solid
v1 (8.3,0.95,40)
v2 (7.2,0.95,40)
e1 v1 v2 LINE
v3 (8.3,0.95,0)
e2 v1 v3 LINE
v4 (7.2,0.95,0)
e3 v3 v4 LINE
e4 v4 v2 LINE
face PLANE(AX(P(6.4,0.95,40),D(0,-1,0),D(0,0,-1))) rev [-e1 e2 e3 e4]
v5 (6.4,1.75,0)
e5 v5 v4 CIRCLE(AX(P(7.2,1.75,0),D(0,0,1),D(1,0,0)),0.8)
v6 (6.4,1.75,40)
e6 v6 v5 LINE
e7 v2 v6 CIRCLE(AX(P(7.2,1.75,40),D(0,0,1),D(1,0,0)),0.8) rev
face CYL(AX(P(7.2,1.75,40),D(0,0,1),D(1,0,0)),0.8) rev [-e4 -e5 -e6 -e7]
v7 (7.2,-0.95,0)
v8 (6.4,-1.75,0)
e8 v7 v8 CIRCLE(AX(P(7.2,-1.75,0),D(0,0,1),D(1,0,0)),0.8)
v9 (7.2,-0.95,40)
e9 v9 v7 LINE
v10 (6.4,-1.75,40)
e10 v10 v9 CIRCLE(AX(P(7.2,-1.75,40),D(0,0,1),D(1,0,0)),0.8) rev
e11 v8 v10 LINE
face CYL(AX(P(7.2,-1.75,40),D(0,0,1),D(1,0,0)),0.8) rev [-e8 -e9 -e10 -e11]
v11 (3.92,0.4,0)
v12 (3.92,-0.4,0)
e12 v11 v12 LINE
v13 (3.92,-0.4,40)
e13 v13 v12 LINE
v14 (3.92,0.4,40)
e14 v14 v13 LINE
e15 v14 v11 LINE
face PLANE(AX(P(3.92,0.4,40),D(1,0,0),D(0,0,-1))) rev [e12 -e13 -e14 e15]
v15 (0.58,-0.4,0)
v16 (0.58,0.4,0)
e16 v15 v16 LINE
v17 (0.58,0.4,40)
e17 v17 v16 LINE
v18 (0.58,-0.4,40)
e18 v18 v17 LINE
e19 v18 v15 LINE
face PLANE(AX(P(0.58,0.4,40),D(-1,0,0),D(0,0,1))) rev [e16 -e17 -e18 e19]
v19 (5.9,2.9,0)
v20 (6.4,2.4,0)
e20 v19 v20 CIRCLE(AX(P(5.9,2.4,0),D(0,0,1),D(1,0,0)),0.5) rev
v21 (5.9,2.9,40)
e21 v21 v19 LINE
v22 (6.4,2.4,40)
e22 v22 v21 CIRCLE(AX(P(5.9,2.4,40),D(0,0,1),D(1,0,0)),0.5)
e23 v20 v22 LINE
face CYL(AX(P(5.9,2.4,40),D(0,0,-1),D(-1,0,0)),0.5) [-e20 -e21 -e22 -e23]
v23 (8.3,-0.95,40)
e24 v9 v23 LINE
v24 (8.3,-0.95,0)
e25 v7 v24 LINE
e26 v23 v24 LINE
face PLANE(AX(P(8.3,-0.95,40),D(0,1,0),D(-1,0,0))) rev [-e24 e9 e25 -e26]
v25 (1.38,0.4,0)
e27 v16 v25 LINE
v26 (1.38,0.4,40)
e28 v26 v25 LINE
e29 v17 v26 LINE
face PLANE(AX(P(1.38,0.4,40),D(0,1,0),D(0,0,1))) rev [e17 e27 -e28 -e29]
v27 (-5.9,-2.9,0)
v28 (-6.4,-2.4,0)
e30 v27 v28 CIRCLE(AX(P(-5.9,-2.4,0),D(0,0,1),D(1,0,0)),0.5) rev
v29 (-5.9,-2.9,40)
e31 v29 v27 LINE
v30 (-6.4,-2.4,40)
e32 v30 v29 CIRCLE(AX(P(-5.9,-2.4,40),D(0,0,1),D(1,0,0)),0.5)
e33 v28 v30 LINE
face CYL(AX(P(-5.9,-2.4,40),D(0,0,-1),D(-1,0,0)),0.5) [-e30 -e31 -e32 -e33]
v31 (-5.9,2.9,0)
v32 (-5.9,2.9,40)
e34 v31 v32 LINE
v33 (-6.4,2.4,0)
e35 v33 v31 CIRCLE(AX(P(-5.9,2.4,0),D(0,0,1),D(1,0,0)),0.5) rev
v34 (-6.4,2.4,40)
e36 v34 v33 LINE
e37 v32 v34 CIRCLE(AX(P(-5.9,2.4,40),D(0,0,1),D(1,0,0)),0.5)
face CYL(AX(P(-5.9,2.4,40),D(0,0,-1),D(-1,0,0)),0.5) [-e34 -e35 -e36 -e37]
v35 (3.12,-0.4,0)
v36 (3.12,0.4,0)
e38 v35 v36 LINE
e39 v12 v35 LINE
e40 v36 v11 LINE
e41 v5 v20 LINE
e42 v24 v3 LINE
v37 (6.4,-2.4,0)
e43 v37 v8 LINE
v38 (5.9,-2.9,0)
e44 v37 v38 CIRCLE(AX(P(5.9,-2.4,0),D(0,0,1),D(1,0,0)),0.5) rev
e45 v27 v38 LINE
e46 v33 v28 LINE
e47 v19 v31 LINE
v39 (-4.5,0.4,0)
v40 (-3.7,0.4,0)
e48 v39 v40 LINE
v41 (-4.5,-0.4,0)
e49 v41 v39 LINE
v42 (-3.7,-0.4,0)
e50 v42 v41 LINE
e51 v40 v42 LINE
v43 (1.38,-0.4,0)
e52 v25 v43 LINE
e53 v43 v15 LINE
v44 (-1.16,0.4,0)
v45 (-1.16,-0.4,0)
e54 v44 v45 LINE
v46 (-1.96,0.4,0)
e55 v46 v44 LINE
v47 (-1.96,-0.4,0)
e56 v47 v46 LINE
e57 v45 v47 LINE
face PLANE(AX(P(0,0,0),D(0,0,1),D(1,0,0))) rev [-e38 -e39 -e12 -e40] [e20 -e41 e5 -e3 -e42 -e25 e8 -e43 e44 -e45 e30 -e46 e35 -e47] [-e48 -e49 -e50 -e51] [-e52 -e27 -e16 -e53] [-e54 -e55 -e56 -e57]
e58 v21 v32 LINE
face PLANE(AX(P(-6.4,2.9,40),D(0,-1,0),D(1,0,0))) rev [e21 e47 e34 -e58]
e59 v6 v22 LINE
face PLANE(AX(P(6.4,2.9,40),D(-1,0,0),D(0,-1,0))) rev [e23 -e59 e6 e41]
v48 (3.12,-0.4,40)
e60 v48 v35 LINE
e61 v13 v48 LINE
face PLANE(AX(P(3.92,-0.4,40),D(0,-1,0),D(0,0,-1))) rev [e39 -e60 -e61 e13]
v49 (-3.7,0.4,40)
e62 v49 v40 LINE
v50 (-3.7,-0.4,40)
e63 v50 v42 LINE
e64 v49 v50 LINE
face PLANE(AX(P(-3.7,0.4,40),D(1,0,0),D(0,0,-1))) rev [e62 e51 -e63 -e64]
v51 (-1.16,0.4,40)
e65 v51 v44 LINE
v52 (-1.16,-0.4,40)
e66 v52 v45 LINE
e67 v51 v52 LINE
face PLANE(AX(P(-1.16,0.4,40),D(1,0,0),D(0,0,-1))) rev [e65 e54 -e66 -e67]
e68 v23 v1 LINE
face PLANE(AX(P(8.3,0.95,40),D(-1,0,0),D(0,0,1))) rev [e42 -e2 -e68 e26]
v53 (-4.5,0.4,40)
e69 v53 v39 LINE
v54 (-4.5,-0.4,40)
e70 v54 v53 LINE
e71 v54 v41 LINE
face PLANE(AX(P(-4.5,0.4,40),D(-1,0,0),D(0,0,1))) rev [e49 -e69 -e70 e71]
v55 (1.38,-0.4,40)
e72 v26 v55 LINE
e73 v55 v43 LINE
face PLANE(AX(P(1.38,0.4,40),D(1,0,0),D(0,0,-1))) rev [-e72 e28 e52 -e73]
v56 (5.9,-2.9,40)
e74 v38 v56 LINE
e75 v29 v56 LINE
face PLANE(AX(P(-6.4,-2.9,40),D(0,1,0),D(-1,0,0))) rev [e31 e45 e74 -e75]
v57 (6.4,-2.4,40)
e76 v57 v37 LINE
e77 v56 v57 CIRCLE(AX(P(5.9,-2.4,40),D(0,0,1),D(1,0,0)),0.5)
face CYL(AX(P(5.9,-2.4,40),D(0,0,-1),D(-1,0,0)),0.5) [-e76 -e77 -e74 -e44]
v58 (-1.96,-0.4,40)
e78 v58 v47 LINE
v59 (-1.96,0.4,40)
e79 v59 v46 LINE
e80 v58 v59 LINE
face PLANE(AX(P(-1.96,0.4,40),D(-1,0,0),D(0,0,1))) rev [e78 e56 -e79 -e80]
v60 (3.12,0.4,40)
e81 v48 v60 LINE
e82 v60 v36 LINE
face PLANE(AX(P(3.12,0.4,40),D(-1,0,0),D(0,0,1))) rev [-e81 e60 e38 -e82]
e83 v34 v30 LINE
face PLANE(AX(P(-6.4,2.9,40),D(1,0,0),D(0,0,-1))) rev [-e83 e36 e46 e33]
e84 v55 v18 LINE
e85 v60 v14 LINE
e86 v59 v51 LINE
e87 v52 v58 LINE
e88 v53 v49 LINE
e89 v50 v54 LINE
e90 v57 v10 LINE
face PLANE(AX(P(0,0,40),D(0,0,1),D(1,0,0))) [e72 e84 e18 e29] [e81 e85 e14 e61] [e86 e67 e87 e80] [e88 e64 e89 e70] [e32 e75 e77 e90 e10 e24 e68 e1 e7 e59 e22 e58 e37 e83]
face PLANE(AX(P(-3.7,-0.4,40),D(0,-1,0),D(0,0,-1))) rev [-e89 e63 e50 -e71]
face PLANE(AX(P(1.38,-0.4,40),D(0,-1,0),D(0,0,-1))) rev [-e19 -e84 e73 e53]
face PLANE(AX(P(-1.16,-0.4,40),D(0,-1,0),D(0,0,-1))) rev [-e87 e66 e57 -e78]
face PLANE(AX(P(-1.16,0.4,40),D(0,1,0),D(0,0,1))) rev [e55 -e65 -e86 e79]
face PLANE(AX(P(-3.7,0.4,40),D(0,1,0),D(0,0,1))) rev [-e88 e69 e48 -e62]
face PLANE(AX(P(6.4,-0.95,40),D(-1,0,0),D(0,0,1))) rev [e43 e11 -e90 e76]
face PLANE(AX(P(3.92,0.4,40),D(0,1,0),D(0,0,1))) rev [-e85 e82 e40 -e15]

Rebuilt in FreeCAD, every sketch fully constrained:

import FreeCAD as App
import Part
import Sketcher

V = App.Vector


def edges_at(feature, points):
    """Names of the edges that pass closest to the given points."""
    edges = feature.Shape.Edges
    near = lambda p: min(range(len(edges)), key=lambda i: edges[i].distToShape(Part.Vertex(*p))[0])
    return sorted({f"Edge{near(p) + 1}" for p in points})


def add_polygon(sketch, points):
    """Adds a closed chain of lines whose ends are joined by coincident constraints."""
    first, n = sketch.GeometryCount, len(points)
    for a, b in zip(points, points[1:] + points[:1]):
        sketch.addGeometry(Part.LineSegment(App.Vector(*a, 0), App.Vector(*b, 0)), False)
    for i in range(n):
        sketch.addConstraint(Sketcher.Constraint("Coincident", first + i, 2, first + (i + 1) % n, 1))

doc = App.newDocument("Part")
body = doc.addObject("PartDesign::Body", "Body")

# Sketch on XY plane
sketch1 = body.newObject("Sketcher::SketchObject", "Sketch")
sketch1.AttachmentSupport = (doc.getObject("XY_Plane"), [""])
sketch1.MapMode = "FlatFace"
add_polygon(sketch1, [(8.3, 0.9), (6.4, 0.9), (6.4, 2.9), (-6.4, 2.9), (-6.4, -2.9), (6.4, -2.9), (6.4, -0.9), (8.3, -0.9)])  # lines 0-7
sketch1.addConstraint(Sketcher.Constraint("Horizontal", 0))
sketch1.addConstraint(Sketcher.Constraint("Vertical", 1))
sketch1.addConstraint(Sketcher.Constraint("Horizontal", 2))
sketch1.addConstraint(Sketcher.Constraint("Vertical", 3))
sketch1.addConstraint(Sketcher.Constraint("Horizontal", 4))
sketch1.addConstraint(Sketcher.Constraint("Vertical", 5))
sketch1.addConstraint(Sketcher.Constraint("Horizontal", 6))
sketch1.addConstraint(Sketcher.Constraint("Vertical", 7))
sketch1.addConstraint(Sketcher.Constraint("Symmetric", 1, 2, 3, 2, -1, 1))
sketch1.addConstraint(Sketcher.Constraint("Symmetric", 0, 2, 5, 2, -1))
sketch1.addConstraint(Sketcher.Constraint("Equal", 6, 7))
sketch1.addConstraint(Sketcher.Constraint("DistanceX", 0, 2, 0, 1, 1.9))
sketch1.addConstraint(Sketcher.Constraint("DistanceX", 2, 2, 2, 1, 12.8))
sketch1.addConstraint(Sketcher.Constraint("DistanceY", 3, 2, 3, 1, 5.8))
pad1 = body.newObject("PartDesign::Pad", "Pad")
pad1.Profile = sketch1
pad1.Length = 40

# Sketch on XY plane
sketch2 = body.newObject("Sketcher::SketchObject", "Sketch001")
sketch2.AttachmentSupport = (doc.getObject("XY_Plane"), [""])
sketch2.MapMode = "FlatFace"
add_polygon(sketch2, [(-3.7, 0.4), (-3.7, -0.4), (-4.5, -0.4), (-4.5, 0.4)])  # lines 0-3
sketch2.addConstraint(Sketcher.Constraint("Vertical", 0))
sketch2.addConstraint(Sketcher.Constraint("Horizontal", 1))
sketch2.addConstraint(Sketcher.Constraint("Vertical", 2))
sketch2.addConstraint(Sketcher.Constraint("Horizontal", 3))
sketch2.addConstraint(Sketcher.Constraint("Equal", 3, 0))
sketch2.addConstraint(Sketcher.Constraint("DistanceX", 1, 2, 1, 1, 0.8))
sketch2.addConstraint(Sketcher.Constraint("DistanceX", 0, 2, -1, 1, 3.7))
sketch2.addConstraint(Sketcher.Constraint("DistanceY", 0, 2, -1, 1, 0.4))
pocket1 = body.newObject("PartDesign::Pocket", "Pocket")
pocket1.Profile = sketch2
pocket1.Type = "ThroughAll"
pocket1.Reversed = True
doc.recompute()

linearpattern = body.newObject("PartDesign::LinearPattern", "LinearPattern")
linearpattern.Originals = [pocket1]
linearpattern.Direction = (doc.getObject("X_Axis"), [""])
linearpattern.Mode = "offset"
linearpattern.Offset = 2.54
linearpattern.Occurrences = 4
body.Tip = linearpattern
doc.recompute()

fillet = body.newObject("PartDesign::Fillet", "Fillet")
fillet.Base = (linearpattern, edges_at(linearpattern, [(6.4, 0.95, 20), (6.4, -0.95, 20)]))
fillet.Radius = 0.8
doc.recompute()

fillet2 = body.newObject("PartDesign::Fillet", "Fillet001")
fillet2.Base = (fillet, edges_at(fillet, [
    (6.4, -2.9, 20),
    (-6.4, -2.9, 20),
    (-6.4, 2.9, 20),
    (6.4, 2.9, 20),
]))
fillet2.Radius = 0.5

doc.recompute()
